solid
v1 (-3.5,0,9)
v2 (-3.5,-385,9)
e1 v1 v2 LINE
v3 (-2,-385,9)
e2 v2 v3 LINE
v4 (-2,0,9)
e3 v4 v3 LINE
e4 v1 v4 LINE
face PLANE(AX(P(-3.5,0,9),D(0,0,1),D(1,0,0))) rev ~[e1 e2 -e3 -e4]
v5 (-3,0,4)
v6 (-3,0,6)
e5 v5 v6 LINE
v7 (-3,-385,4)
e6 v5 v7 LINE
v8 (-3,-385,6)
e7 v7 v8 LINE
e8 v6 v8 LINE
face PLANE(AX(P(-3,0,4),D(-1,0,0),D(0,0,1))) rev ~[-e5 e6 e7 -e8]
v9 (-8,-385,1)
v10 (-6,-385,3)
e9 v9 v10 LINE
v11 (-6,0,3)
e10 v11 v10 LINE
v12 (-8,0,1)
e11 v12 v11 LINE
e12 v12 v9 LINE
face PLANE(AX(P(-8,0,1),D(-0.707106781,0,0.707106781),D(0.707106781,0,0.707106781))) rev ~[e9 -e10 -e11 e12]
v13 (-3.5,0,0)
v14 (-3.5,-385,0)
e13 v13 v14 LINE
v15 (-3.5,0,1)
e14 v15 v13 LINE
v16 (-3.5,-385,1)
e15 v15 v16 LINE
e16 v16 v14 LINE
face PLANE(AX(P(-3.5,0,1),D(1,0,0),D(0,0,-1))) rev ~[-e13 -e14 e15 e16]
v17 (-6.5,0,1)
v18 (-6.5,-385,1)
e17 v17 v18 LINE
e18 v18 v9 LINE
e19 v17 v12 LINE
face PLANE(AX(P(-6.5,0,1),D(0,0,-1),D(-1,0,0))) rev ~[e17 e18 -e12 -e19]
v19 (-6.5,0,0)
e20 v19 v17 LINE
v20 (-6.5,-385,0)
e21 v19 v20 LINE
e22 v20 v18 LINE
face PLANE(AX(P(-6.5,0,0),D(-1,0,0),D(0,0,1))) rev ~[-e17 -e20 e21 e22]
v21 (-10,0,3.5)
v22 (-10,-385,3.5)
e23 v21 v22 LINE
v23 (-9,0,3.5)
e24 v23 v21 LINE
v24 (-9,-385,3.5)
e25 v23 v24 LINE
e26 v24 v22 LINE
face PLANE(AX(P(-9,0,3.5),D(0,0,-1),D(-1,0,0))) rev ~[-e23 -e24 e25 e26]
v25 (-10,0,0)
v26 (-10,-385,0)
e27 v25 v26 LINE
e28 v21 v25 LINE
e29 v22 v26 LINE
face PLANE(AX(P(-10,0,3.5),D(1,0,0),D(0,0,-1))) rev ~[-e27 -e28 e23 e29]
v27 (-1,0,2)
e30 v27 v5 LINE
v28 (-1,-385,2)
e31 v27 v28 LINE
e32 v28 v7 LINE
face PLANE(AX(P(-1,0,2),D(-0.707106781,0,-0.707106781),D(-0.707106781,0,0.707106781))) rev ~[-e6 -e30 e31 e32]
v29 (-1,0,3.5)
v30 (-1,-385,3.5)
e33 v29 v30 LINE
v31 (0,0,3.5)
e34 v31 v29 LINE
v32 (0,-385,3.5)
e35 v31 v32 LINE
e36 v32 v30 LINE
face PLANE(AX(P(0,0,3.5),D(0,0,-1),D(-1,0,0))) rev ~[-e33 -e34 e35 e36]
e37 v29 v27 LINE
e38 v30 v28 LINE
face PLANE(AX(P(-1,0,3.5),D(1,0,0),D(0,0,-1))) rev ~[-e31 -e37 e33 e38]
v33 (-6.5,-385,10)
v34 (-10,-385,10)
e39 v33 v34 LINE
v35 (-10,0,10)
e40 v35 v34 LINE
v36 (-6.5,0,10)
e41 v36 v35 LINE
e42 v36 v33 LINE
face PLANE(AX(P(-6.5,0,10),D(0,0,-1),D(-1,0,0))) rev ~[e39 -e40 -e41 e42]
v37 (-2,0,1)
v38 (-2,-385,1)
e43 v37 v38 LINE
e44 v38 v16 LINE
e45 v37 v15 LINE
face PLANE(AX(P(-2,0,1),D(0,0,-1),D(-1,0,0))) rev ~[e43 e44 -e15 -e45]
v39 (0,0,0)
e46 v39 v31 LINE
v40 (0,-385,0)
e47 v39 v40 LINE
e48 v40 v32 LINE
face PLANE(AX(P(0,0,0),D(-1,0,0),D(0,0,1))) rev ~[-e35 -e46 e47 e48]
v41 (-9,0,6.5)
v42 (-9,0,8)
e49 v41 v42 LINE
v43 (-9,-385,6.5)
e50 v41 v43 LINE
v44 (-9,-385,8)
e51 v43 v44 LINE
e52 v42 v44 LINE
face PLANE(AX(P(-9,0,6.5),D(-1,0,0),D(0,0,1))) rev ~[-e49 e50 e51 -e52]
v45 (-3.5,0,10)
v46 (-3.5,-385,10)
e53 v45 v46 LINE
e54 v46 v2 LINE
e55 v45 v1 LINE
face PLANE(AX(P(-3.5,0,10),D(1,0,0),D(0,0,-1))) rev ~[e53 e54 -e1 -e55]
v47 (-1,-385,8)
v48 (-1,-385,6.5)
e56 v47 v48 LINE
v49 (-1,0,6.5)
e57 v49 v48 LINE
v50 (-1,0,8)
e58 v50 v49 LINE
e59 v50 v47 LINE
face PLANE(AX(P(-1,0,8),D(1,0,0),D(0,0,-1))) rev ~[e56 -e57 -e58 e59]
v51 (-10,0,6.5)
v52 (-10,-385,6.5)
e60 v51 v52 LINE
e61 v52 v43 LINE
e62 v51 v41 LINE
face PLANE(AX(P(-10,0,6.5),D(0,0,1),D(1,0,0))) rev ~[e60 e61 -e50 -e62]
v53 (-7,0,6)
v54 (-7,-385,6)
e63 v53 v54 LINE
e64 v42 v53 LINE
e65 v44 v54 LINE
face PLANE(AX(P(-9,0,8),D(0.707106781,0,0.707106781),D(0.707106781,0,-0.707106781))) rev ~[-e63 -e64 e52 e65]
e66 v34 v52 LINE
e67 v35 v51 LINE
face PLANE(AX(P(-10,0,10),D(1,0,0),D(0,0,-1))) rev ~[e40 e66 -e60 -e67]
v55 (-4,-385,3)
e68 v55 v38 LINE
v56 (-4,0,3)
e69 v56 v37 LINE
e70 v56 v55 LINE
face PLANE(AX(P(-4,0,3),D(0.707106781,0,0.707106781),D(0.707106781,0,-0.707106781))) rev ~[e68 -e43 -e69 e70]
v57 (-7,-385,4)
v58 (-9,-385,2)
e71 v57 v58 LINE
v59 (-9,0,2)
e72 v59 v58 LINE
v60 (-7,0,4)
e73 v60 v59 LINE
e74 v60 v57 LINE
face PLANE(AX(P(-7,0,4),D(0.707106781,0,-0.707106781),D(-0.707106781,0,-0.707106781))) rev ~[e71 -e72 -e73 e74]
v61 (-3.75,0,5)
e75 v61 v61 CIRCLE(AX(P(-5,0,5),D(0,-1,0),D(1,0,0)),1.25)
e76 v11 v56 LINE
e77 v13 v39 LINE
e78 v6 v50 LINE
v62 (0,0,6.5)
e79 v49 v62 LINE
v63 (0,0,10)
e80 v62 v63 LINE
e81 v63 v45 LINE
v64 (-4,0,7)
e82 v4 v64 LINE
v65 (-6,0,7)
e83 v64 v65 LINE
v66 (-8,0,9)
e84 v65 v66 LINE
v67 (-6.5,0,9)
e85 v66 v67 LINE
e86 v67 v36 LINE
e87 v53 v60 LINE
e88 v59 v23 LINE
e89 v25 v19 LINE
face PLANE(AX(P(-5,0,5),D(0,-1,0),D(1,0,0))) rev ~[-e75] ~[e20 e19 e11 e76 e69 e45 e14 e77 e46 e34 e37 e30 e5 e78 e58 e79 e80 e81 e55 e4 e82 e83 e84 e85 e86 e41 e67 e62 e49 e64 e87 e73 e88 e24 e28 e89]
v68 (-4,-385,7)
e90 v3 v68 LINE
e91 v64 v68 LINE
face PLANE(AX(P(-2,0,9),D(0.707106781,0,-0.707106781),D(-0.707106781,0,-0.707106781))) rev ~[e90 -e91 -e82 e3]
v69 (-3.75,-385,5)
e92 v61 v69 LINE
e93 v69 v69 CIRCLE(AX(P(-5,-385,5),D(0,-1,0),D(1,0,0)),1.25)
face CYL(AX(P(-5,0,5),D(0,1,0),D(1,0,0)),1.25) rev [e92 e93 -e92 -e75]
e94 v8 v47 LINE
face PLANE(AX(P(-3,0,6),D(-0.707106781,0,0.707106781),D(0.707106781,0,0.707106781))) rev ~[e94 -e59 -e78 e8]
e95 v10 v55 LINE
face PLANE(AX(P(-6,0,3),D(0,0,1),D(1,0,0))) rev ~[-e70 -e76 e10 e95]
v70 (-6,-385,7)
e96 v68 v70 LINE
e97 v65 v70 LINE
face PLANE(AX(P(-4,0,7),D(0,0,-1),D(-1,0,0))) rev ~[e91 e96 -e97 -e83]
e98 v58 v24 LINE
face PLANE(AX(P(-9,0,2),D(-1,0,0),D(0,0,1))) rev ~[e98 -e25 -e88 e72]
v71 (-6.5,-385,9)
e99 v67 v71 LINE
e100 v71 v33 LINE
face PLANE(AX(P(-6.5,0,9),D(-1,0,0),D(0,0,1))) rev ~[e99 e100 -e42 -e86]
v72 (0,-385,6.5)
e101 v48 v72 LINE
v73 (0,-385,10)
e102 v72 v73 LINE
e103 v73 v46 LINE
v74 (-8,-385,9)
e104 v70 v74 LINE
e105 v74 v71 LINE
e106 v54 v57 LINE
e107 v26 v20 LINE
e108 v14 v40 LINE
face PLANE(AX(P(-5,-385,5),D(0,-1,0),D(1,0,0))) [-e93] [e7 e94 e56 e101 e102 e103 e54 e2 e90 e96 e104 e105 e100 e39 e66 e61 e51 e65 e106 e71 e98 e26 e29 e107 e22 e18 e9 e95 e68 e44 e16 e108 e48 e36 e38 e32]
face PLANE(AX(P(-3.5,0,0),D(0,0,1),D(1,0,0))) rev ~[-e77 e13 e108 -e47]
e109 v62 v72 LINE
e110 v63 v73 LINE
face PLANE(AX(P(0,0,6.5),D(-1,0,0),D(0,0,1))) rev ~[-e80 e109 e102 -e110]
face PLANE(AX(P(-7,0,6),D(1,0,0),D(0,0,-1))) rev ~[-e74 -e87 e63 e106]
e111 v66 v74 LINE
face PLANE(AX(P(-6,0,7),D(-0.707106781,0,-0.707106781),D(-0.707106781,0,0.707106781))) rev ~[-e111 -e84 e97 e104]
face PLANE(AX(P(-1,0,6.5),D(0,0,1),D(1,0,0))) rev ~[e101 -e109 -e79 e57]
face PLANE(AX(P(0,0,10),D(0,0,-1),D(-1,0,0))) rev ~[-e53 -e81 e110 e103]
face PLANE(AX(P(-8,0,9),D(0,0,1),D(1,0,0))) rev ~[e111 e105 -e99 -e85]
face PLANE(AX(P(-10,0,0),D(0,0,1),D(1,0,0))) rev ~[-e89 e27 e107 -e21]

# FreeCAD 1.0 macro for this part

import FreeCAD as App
import Part
import Sketcher

V = App.Vector


def add_polygon(sketch, points):
    """Adds a closed chain of lines whose ends are joined by coincident constraints."""
    first, n = sketch.GeometryCount, len(points)
    for a, b in zip(points, points[1:] + points[:1]):
        sketch.addGeometry(Part.LineSegment(App.Vector(*a, 0), App.Vector(*b, 0)), False)
    for i in range(n):
        sketch.addConstraint(Sketcher.Constraint("Coincident", first + i, 2, first + (i + 1) % n, 1))

doc = App.newDocument("Part")
params = doc.addObject("Spreadsheet::Sheet", "Params")
for row, (alias, value) in enumerate([
    ("sketch1_diameter", "2.5 mm"),
    ("sketch1_width", "1 mm"),
    ("sketch1_width2", "2 mm"),
    ("sketch1_width3", "3.5 mm"),
    ("sketch1_width4", "1.5 mm"),
    ("pad1_length", "385 mm"),
], start=1):
    params.set(f"A{row}", alias)
    params.set(f"B{row}", "=" + value)
    params.setAlias(f"B{row}", alias)

body = doc.addObject("PartDesign::Body", "Body")

# Sketch on XZ plane
sketch1 = doc.addObject("Sketcher::SketchObject", "Sketch")
body.addObject(sketch1)
sketch1.AttachmentSupport = (doc.XZ_Plane, [""])
sketch1.MapMode = "FlatFace"
add_polygon(sketch1, [(-3.5, 0), (0, 0), (0, 3.5), (-1, 3.5), (-1, 2), (-3, 4), (-3, 6), (-1, 8), (-1, 6.5), (0, 6.5), (0, 10), (-3.5, 10), (-3.5, 9), (-2, 9), (-4, 7), (-6, 7), (-8, 9), (-6.5, 9), (-6.5, 10), (-10, 10), (-10, 6.5), (-9, 6.5), (-9, 8), (-7, 6), (-7, 4), (-9, 2), (-9, 3.5), (-10, 3.5), (-10, 0), (-6.5, 0), (-6.5, 1), (-8, 1), (-6, 3), (-4, 3), (-2, 1), (-3.5, 1)])  # lines 0-35
sketch1.addGeometry(Part.Circle(V(-5, 5, 0), V(0, 0, 1), 1.2), False)  # 36
sketch1.addConstraint([
    Sketcher.Constraint("Horizontal", 0),
    Sketcher.Constraint("Vertical", 1),
    Sketcher.Constraint("Horizontal", 2),
    Sketcher.Constraint("Vertical", 3),
    Sketcher.Constraint("Vertical", 5),
    Sketcher.Constraint("Vertical", 7),
    Sketcher.Constraint("Horizontal", 8),
    Sketcher.Constraint("Vertical", 9),
    Sketcher.Constraint("Horizontal", 10),
    Sketcher.Constraint("Vertical", 11),
    Sketcher.Constraint("Horizontal", 12),
    Sketcher.Constraint("Horizontal", 14),
    Sketcher.Constraint("Horizontal", 16),
    Sketcher.Constraint("Vertical", 17),
    Sketcher.Constraint("Horizontal", 18),
    Sketcher.Constraint("Vertical", 19),
    Sketcher.Constraint("Horizontal", 20),
    Sketcher.Constraint("Vertical", 21),
    Sketcher.Constraint("Vertical", 23),
    Sketcher.Constraint("Vertical", 25),
    Sketcher.Constraint("Horizontal", 26),
    Sketcher.Constraint("Vertical", 27),
    Sketcher.Constraint("Horizontal", 28),
    Sketcher.Constraint("Vertical", 29),
    Sketcher.Constraint("Horizontal", 30),
    Sketcher.Constraint("Horizontal", 32),
    Sketcher.Constraint("Horizontal", 34),
    Sketcher.Constraint("Vertical", 35),
    Sketcher.Constraint("Coincident", 0, 2, -1, 1),
    Sketcher.Constraint("PointOnObject", 8, 2, -2),
    Sketcher.Constraint("PointOnObject", 27, 2, -1),
    Sketcher.Constraint("Perpendicular", 4, 6),
    Sketcher.Constraint("Parallel", 6, 13),
    Sketcher.Constraint("Perpendicular", 13, 15),
    Sketcher.Constraint("Parallel", 15, 22),
    Sketcher.Constraint("Perpendicular", 22, 24),
    Sketcher.Constraint("Parallel", 24, 31),
    Sketcher.Constraint("Perpendicular", 31, 33),
    Sketcher.Constraint("Horizontal", 12, 2, 15, 2),
    Sketcher.Constraint("Horizontal", 10, 2, 17, 2),
    Sketcher.Constraint("Horizontal", 8, 2, 19, 2),
    Sketcher.Constraint("Horizontal", 6, 2, 21, 2),
    Sketcher.Constraint("Horizontal", 5, 2, 22, 2),
    Sketcher.Constraint("Horizontal", 4, 2, 23, 2),
    Sketcher.Constraint("Horizontal", 3, 2, 24, 2),
    Sketcher.Constraint("Horizontal", 2, 2, 25, 2),
    Sketcher.Constraint("Horizontal", 30, 2, 33, 2),
    Sketcher.Constraint("Vertical", 3, 2, 6, 2),
    Sketcher.Constraint("Vertical", 21, 2, 24, 2),
    Sketcher.Constraint("Vertical", 19, 2, 26, 2),
    Sketcher.Constraint("Vertical", 17, 2, 28, 2),
    Sketcher.Constraint("Vertical", 15, 2, 30, 2),
    Sketcher.Constraint("Vertical", 14, 2, 31, 2),
    Sketcher.Constraint("Vertical", 13, 2, 32, 2),
    Sketcher.Constraint("Vertical", 11, 2, 34, 2),
    Sketcher.Constraint("Equal", 12, 16),
    Sketcher.Constraint("Equal", 10, 18),
    Sketcher.Constraint("Equal", 8, 20),
    Sketcher.Constraint("Equal", 28, 1),
    Sketcher.Constraint("Equal", 34, 3),
    Sketcher.Constraint("Equal", 32, 5),
    Sketcher.Constraint("Equal", 3, 7),
    Sketcher.Constraint("Equal", 1, 9),
    Sketcher.Constraint("Equal", 26, 11),
    Sketcher.Constraint("Equal", 17, 29),
    Sketcher.Constraint("Equal", 6, 13),
    Sketcher.Constraint("Diameter", 36, 2.5),
    Sketcher.Constraint("DistanceX", 2, 2, 2, 1, 1.0),
    Sketcher.Constraint("DistanceX", 14, 2, 14, 1, 2.0),
    Sketcher.Constraint("DistanceX", 0, 1, 0, 2, 3.5),
    Sketcher.Constraint("DistanceX", 12, 1, 12, 2, 1.5),
    Sketcher.Constraint("DistanceX", 36, 3, -1, 1, 5.0),
    Sketcher.Constraint("DistanceY", -1, 1, 36, 3, 5.0),
    Sketcher.Constraint("DistanceX", 4, 2, -1, 1, 3.0),
])
sketch1.setExpression("Constraints[102]", "Params.sketch1_diameter")
sketch1.setExpression("Constraints[103]", "Params.sketch1_width")
sketch1.setExpression("Constraints[104]", "Params.sketch1_width2")
sketch1.setExpression("Constraints[105]", "Params.sketch1_width3")
sketch1.setExpression("Constraints[106]", "Params.sketch1_width4")
pad1 = doc.addObject("PartDesign::Pad", "Pad")
body.addObject(pad1)
pad1.Profile = sketch1
pad1.setExpression("Length", "Params.pad1_length")

doc.recompute()
